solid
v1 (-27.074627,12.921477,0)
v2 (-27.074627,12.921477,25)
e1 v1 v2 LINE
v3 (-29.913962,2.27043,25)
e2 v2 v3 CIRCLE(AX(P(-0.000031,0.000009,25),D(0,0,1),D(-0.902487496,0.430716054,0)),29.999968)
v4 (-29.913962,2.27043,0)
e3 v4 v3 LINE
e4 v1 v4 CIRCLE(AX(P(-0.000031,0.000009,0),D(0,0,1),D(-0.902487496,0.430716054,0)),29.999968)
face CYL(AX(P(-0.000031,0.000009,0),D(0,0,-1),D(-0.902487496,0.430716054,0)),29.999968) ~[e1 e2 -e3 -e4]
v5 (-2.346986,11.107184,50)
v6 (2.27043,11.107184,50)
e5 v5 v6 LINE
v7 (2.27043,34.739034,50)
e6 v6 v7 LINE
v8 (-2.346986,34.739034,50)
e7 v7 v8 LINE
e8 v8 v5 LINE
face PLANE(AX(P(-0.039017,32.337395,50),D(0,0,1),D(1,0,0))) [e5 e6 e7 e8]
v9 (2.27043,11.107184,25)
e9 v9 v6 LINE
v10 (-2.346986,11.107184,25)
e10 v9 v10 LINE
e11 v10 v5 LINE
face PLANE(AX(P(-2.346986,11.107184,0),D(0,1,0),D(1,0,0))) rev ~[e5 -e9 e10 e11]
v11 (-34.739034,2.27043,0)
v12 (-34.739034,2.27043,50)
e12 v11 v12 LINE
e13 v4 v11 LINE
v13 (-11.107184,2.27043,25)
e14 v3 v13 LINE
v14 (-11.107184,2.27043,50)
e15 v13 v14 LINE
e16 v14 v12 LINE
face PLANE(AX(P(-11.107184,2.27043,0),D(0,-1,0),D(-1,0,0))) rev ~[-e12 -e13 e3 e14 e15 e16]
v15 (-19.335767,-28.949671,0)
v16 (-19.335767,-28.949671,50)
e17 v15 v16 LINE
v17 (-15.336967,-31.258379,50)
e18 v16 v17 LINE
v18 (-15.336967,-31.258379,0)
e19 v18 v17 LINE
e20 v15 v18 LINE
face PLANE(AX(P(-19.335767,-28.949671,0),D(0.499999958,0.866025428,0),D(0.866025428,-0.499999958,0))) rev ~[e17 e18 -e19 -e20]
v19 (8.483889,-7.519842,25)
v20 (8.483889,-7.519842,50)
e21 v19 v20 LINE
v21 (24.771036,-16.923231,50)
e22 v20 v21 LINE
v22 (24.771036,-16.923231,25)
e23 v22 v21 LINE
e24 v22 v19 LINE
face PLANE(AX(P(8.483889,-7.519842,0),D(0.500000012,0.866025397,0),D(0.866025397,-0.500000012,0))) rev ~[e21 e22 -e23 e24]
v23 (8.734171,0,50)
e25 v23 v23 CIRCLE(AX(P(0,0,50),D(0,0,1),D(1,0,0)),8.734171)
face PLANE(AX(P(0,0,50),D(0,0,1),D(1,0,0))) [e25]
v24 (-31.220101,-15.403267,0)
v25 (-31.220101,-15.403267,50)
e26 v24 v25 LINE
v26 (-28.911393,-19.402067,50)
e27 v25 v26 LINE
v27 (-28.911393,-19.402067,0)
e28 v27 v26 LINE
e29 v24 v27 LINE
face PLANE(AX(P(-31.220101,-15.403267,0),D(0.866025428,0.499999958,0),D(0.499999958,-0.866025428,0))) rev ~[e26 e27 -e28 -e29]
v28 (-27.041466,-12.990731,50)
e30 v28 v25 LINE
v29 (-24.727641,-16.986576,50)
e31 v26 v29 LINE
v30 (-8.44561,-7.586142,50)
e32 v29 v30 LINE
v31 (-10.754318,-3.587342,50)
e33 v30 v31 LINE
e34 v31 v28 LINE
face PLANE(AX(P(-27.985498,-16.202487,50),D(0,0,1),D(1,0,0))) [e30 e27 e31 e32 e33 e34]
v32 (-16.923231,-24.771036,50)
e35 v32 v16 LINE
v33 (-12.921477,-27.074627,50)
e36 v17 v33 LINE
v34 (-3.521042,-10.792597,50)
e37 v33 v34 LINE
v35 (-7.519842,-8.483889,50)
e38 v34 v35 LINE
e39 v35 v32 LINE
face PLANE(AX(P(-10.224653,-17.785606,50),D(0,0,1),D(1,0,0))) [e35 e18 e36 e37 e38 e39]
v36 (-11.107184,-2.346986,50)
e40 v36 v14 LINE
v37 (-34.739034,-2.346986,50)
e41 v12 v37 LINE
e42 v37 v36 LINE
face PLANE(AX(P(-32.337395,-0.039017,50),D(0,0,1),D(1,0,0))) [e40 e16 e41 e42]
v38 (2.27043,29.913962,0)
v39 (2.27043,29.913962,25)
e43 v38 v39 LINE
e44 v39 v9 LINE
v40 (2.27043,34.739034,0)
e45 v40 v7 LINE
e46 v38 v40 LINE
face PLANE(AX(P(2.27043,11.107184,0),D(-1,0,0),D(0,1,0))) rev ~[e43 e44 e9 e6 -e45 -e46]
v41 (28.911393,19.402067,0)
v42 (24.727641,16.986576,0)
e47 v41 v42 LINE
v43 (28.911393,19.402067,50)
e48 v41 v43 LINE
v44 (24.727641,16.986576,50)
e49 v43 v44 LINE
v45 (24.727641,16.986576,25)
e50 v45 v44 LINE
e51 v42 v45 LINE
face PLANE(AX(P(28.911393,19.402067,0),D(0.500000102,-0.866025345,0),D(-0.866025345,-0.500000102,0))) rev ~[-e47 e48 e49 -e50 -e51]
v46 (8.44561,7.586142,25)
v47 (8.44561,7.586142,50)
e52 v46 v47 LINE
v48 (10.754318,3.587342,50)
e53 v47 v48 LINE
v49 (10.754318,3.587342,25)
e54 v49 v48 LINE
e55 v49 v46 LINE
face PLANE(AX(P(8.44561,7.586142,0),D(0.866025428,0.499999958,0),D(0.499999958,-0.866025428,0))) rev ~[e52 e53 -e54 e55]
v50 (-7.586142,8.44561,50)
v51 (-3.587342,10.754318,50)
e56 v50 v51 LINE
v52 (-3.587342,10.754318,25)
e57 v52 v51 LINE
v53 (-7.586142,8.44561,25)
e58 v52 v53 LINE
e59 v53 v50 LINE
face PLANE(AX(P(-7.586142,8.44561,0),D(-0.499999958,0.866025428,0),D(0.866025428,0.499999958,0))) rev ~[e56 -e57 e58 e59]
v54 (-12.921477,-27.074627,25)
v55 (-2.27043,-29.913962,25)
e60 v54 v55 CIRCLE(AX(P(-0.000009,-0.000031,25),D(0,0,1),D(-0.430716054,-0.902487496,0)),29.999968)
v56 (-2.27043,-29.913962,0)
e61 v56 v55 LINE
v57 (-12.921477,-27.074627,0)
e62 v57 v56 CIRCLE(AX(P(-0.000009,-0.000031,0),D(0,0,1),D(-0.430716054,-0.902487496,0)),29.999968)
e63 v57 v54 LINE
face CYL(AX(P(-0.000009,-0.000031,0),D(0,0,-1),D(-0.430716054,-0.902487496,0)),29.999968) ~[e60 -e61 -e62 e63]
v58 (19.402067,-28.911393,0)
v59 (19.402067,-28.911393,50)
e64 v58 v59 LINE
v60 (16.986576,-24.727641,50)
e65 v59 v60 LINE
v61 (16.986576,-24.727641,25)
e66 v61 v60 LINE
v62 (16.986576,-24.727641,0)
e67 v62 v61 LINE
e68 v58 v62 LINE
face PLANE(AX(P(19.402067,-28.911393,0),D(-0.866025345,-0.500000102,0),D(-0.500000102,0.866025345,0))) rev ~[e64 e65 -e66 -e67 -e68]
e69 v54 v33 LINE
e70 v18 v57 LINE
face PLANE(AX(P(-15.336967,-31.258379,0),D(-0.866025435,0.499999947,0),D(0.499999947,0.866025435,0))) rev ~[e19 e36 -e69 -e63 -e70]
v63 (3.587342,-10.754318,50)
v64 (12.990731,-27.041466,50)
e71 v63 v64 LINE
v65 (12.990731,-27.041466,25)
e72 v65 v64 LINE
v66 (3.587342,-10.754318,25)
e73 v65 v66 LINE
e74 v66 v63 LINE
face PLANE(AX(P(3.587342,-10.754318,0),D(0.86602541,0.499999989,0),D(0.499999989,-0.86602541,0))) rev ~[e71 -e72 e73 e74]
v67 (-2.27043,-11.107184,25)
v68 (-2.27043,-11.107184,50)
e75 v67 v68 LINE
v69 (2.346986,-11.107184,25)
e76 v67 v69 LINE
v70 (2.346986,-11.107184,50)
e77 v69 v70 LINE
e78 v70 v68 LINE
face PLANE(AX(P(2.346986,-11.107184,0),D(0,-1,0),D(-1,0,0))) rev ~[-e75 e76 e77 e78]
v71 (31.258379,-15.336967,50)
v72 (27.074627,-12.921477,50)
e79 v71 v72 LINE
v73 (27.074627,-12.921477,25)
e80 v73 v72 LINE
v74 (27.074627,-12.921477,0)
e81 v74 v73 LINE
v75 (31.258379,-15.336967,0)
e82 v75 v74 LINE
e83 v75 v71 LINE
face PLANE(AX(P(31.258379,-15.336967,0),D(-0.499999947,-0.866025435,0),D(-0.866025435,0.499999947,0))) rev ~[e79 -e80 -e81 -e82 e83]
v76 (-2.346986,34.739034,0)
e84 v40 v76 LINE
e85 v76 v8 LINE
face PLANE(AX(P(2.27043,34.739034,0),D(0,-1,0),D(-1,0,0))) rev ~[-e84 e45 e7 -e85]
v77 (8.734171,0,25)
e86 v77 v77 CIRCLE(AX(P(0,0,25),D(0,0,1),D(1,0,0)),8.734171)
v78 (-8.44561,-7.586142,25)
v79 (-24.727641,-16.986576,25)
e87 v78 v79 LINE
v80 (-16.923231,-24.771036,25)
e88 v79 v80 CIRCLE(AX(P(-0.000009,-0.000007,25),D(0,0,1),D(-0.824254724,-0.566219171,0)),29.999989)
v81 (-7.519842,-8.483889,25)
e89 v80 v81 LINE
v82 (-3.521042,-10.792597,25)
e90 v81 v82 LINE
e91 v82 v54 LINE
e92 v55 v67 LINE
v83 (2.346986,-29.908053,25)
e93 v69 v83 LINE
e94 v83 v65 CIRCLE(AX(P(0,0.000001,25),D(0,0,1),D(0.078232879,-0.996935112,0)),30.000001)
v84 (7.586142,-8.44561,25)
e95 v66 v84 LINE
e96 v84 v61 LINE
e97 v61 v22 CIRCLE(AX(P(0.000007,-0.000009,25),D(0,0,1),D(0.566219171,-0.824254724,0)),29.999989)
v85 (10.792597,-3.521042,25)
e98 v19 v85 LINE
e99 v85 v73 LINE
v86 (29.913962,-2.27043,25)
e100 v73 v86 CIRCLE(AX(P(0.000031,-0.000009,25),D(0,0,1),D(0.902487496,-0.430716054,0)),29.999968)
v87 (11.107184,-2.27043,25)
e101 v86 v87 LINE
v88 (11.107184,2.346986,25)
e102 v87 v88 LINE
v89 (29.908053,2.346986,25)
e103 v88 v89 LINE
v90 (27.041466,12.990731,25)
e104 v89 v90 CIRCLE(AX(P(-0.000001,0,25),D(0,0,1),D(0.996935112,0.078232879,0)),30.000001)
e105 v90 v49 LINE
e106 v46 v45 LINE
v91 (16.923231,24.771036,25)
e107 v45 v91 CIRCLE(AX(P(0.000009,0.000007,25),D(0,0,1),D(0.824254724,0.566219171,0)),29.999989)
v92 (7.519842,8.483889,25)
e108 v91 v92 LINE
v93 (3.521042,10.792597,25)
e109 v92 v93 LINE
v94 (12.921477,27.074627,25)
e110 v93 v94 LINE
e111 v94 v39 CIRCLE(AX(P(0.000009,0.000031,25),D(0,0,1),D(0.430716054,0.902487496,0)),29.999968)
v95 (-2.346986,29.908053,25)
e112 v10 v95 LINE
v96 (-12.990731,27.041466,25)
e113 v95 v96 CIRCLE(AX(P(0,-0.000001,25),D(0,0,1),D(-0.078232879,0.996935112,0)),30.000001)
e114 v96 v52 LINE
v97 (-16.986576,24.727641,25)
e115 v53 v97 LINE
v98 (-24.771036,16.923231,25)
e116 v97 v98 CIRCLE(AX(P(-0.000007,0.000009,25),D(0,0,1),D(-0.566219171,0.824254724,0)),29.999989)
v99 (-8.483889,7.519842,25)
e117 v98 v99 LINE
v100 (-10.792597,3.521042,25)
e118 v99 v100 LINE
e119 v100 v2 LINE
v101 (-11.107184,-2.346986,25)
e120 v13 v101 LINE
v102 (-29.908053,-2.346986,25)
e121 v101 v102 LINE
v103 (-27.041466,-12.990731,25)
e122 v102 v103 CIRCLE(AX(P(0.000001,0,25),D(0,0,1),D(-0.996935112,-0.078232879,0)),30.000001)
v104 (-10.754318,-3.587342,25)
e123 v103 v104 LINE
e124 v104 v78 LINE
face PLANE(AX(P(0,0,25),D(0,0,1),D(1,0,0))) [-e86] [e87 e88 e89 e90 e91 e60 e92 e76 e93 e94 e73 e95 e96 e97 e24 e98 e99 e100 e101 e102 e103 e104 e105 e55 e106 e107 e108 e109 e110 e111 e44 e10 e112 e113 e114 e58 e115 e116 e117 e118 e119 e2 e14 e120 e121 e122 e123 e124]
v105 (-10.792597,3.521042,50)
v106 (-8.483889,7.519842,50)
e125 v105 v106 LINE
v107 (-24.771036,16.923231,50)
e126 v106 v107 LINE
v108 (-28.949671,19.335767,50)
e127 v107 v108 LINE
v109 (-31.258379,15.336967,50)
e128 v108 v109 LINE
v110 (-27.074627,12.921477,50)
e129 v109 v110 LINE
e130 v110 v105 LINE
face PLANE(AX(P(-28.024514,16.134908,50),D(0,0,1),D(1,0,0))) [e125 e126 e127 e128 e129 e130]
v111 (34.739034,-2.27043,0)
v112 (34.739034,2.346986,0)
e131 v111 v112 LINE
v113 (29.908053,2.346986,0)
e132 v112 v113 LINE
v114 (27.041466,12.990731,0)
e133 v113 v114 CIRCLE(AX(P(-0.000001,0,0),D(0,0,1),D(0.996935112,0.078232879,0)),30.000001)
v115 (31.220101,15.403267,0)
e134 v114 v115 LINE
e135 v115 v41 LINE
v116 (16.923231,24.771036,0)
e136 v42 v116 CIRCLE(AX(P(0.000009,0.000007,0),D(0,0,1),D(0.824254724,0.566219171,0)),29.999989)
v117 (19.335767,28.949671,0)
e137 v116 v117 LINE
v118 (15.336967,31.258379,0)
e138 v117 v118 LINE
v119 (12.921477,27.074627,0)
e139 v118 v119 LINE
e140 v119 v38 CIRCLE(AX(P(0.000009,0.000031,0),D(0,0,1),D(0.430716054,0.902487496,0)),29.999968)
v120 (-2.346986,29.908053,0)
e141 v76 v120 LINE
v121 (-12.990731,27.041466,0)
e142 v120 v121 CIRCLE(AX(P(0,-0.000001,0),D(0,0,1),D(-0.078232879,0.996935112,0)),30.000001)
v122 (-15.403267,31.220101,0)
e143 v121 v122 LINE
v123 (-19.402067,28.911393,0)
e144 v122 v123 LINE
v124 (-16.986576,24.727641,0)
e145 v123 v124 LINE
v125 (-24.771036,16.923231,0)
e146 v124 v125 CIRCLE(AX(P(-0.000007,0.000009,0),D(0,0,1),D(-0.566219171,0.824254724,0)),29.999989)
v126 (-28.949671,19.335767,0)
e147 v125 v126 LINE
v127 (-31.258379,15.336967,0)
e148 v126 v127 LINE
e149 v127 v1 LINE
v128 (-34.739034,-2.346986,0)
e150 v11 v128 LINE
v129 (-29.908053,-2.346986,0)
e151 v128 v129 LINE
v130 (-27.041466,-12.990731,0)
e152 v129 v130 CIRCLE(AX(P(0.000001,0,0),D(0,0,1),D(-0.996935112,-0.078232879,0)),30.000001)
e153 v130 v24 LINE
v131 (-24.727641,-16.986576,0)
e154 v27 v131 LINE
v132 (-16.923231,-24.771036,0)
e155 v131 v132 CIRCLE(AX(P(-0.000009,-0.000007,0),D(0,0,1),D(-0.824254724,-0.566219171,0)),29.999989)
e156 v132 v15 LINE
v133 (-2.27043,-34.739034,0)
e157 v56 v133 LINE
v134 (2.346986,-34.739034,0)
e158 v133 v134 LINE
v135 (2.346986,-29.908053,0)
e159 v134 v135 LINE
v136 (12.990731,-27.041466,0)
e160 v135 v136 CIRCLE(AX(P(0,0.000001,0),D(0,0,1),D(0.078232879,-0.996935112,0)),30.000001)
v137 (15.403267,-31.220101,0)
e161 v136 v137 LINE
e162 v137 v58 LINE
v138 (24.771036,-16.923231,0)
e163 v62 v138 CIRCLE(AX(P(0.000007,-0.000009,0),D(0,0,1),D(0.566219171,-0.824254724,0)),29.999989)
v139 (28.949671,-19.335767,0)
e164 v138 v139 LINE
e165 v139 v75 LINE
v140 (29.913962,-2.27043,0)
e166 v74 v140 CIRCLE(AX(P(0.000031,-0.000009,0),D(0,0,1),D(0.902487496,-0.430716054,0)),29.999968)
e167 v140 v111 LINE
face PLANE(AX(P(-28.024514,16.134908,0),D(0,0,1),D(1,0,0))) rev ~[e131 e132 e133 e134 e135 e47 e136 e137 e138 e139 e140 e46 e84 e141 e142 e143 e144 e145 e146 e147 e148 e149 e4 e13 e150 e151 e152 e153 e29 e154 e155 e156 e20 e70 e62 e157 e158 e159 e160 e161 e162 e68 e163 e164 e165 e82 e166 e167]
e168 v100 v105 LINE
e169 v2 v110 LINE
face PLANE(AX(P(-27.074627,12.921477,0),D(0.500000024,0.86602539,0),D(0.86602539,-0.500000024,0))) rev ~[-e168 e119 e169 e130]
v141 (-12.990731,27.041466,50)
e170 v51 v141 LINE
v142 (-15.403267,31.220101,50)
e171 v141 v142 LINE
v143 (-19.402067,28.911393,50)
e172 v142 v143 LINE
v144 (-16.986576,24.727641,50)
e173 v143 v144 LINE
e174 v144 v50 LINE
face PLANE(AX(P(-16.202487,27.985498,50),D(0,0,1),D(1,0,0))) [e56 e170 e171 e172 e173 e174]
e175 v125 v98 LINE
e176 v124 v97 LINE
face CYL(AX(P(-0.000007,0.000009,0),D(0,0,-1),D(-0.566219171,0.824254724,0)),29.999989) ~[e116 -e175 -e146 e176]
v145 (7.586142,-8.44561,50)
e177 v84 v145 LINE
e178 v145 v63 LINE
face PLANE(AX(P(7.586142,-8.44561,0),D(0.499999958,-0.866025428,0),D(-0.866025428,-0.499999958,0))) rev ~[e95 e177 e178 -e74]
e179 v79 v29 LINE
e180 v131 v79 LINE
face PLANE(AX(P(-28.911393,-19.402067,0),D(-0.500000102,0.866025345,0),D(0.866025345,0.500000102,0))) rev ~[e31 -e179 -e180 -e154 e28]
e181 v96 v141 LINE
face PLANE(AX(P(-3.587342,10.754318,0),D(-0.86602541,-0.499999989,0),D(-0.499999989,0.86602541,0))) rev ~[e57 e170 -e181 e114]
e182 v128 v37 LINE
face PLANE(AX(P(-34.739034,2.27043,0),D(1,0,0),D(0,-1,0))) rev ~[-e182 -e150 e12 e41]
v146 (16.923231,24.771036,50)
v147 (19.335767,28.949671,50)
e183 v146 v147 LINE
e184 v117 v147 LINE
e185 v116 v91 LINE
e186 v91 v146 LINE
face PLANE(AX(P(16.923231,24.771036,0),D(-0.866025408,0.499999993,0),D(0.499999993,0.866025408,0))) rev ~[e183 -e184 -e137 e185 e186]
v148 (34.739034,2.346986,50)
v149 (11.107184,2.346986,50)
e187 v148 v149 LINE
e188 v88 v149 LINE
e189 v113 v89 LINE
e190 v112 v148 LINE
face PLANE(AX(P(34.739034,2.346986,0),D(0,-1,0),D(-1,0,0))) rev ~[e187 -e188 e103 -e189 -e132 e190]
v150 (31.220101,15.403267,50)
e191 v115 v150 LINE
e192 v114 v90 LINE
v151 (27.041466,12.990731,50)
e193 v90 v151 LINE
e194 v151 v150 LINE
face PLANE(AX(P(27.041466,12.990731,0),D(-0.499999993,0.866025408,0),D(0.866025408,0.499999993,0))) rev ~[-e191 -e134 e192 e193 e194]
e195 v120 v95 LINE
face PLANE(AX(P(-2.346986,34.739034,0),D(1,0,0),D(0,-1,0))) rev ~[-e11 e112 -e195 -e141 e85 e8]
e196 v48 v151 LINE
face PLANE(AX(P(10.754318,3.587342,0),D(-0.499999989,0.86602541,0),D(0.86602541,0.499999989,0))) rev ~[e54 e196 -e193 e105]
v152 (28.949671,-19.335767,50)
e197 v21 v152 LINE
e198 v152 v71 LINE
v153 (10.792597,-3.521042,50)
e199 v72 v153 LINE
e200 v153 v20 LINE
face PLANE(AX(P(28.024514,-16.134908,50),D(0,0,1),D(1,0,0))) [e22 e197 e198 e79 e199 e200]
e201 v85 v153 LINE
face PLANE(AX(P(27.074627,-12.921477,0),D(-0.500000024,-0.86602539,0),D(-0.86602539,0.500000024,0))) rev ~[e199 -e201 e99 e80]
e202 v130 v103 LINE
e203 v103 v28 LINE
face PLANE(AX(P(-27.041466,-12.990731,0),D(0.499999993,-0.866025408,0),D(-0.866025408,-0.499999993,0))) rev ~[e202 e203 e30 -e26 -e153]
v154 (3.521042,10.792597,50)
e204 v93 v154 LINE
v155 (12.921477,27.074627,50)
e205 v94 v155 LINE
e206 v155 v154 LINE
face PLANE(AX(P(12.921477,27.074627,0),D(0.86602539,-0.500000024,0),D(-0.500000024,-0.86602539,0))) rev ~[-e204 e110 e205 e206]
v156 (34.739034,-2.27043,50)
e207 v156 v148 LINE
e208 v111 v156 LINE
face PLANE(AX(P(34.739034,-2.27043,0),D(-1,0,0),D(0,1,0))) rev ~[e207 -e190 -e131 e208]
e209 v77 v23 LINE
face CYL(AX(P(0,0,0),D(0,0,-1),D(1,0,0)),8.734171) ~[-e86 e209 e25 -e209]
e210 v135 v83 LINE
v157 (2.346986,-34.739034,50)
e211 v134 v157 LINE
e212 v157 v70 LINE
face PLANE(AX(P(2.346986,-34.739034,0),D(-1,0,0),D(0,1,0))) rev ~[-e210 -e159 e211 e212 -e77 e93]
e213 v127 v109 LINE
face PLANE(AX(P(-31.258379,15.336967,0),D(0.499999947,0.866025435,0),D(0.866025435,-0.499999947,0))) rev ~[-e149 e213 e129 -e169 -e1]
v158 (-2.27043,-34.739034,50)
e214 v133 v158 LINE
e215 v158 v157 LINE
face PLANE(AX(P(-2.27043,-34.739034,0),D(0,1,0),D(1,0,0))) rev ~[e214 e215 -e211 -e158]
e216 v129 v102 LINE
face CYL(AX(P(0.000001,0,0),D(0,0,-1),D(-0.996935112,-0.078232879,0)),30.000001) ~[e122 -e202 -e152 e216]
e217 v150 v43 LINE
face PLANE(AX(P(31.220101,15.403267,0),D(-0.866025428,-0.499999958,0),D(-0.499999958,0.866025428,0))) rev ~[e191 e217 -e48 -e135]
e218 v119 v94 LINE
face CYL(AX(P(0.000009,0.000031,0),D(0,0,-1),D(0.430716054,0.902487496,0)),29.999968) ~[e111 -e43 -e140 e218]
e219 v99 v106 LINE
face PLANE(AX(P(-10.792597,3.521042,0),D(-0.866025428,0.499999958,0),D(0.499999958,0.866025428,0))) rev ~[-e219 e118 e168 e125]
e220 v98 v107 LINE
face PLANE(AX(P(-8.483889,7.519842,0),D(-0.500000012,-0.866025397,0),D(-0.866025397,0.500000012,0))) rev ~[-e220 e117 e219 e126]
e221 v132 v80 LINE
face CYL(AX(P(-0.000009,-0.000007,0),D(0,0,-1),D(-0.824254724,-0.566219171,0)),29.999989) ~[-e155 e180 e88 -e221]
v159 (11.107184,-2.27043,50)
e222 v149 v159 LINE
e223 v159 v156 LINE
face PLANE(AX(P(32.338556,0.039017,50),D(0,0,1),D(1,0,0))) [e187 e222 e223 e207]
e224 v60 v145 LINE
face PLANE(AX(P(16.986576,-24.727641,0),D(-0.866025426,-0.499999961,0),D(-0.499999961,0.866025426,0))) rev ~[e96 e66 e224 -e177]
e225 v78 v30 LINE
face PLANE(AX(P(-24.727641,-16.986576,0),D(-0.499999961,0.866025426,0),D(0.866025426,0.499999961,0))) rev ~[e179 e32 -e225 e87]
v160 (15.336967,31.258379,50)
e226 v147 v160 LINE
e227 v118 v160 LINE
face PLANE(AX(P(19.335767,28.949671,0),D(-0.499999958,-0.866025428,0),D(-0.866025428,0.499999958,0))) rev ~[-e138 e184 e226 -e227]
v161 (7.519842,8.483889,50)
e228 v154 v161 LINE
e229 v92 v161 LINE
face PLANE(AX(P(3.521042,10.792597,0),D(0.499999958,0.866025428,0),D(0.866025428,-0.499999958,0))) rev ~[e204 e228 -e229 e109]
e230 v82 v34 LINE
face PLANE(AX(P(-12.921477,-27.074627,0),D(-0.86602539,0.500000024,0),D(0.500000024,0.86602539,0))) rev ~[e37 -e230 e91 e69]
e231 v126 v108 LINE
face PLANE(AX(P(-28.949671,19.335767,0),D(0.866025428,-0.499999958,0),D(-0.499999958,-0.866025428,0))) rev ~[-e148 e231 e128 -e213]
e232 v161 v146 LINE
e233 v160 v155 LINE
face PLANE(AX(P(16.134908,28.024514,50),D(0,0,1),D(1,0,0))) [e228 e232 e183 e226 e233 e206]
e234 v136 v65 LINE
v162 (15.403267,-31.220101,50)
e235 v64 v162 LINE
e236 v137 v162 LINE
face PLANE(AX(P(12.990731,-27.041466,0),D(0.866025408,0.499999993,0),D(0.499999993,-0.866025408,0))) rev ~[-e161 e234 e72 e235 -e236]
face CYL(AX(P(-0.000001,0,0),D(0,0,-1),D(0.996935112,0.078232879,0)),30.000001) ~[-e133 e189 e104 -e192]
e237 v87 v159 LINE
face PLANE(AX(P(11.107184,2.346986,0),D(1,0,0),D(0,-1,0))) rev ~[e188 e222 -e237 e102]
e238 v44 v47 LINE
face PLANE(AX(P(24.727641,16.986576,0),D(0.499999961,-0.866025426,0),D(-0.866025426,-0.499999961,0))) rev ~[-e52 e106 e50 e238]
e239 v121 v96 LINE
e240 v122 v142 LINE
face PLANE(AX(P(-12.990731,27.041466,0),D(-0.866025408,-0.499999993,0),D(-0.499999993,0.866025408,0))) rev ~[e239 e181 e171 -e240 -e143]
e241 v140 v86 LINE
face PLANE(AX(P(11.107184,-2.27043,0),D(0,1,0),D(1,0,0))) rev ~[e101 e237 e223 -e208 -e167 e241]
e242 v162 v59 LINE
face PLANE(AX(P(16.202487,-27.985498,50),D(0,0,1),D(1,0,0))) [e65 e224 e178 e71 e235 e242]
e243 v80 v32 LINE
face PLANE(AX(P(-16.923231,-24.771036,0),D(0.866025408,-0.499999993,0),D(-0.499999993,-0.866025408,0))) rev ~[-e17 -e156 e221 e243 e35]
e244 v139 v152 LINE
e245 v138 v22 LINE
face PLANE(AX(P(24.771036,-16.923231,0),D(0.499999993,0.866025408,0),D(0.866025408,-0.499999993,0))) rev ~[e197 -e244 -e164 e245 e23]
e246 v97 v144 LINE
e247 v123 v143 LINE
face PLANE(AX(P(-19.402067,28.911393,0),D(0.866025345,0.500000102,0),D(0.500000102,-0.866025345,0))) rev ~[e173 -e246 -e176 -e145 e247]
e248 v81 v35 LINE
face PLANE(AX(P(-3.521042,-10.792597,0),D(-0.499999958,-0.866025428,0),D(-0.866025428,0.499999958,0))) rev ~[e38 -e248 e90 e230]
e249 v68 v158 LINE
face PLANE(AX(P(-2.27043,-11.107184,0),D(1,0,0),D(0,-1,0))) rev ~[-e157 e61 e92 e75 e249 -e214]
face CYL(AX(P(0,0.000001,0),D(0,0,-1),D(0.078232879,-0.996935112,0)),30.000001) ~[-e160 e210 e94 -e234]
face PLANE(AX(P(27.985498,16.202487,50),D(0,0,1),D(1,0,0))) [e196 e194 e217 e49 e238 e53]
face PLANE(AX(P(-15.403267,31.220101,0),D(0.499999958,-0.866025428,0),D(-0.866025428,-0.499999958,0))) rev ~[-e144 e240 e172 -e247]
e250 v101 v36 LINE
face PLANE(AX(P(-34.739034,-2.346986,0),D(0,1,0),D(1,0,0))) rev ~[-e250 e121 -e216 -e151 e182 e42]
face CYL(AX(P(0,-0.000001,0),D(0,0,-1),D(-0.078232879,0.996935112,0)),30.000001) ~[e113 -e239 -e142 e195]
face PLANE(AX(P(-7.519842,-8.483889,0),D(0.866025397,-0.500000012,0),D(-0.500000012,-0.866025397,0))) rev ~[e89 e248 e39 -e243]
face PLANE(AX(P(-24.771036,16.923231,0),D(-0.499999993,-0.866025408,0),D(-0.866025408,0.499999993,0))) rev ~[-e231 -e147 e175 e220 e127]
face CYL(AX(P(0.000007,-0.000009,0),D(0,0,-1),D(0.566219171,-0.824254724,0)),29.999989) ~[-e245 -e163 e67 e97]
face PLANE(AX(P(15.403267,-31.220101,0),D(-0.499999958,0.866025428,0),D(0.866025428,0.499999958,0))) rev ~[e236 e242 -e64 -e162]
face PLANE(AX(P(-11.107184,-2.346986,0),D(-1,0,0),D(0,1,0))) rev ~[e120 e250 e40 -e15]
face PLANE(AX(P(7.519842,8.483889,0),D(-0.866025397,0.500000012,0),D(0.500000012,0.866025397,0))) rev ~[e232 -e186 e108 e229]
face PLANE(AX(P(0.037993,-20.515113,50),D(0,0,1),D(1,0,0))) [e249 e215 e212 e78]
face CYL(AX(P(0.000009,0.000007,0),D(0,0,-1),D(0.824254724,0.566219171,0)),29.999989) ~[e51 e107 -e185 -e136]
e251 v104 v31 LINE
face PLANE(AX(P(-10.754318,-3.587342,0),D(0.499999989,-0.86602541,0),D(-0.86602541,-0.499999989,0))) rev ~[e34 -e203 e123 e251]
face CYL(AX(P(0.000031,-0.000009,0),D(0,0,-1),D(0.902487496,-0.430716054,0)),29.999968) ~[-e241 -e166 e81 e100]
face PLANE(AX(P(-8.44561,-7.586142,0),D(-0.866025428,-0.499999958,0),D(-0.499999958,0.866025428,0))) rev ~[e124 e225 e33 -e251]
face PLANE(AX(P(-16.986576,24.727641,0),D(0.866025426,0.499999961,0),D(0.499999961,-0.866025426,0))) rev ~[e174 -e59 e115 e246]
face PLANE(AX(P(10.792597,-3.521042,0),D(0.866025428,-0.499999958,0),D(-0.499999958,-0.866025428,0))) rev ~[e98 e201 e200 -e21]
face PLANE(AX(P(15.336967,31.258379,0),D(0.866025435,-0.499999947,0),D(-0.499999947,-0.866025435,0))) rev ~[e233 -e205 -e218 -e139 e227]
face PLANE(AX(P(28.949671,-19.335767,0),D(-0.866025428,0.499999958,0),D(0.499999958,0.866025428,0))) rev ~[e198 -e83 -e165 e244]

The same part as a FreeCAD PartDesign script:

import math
import FreeCAD as App
import Part
import Sketcher
Q = App.Units.Quantity


def add_polygon(sketch, points):
    """Adds a closed chain of lines whose ends are joined by coincident constraints."""
    first, n = sketch.GeometryCount, len(points)
    for a, b in zip(points, points[1:] + points[:1]):
        sketch.addGeometry(Part.LineSegment(App.Vector(*a, 0), App.Vector(*b, 0)), False)
    for i in range(n):
        sketch.addConstraint(Sketcher.Constraint("Coincident", first + i, 2, first + (i + 1) % n, 1))

doc = App.newDocument("Part")
body = doc.addObject("PartDesign::Body", "Body")

# Sketch on XY plane
sketch1 = doc.addObject("Sketcher::SketchObject", "Sketch")
body.addObject(sketch1)
sketch1.AttachmentSupport = (doc.XY_Plane, [""])
sketch1.MapMode = "FlatFace"
sketch1.addGeometry(Part.LineSegment(App.Vector(11.107184, 2.346986, 0), App.Vector(29.908053, 2.346986, 0)), False)
sketch1.addGeometry(Part.ArcOfCircle(Part.Circle(App.Vector(-0.000001, 0, 0), App.Vector(0, 0, 1), 30.000001), math.radians(4.486999), math.radians(25.659648)), False)
sketch1.addGeometry(Part.LineSegment(App.Vector(27.041466, 12.990731, 0), App.Vector(10.754318, 3.587342, 0)), False)
sketch1.addGeometry(Part.LineSegment(App.Vector(10.754318, 3.587342, 0), App.Vector(8.44561, 7.586142, 0)), False)
sketch1.addGeometry(Part.LineSegment(App.Vector(8.44561, 7.586142, 0), App.Vector(24.727641, 16.986576, 0)), False)
sketch1.addGeometry(Part.ArcOfCircle(Part.Circle(App.Vector(0.000009, 0.000007, 0), App.Vector(0, 0, 1), 29.999989), math.radians(34.486996), math.radians(55.659654)), False)
sketch1.addGeometry(Part.LineSegment(App.Vector(16.923231, 24.771036, 0), App.Vector(7.519842, 8.483889, 0)), False)
sketch1.addGeometry(Part.LineSegment(App.Vector(7.519842, 8.483889, 0), App.Vector(3.521042, 10.792597, 0)), False)
sketch1.addGeometry(Part.LineSegment(App.Vector(3.521042, 10.792597, 0), App.Vector(12.921477, 27.074627, 0)), False)
sketch1.addGeometry(Part.ArcOfCircle(Part.Circle(App.Vector(0.000009, 0.000031, 0), App.Vector(0, 0, 1), 29.999968), math.radians(64.486989), math.radians(85.659661)), False)
sketch1.addGeometry(Part.LineSegment(App.Vector(2.27043, 29.913962, 0), App.Vector(2.27043, 11.107184, 0)), False)
sketch1.addGeometry(Part.LineSegment(App.Vector(2.27043, 11.107184, 0), App.Vector(-2.346986, 11.107184, 0)), False)
sketch1.addGeometry(Part.LineSegment(App.Vector(-2.346986, 11.107184, 0), App.Vector(-2.346986, 29.908053, 0)), False)
sketch1.addGeometry(Part.ArcOfCircle(Part.Circle(App.Vector(0, -0.000001, 0), App.Vector(0, 0, 1), 30.000001), math.radians(94.486999), math.radians(115.659648)), False)
sketch1.addGeometry(Part.LineSegment(App.Vector(-12.990731, 27.041466, 0), App.Vector(-3.587342, 10.754318, 0)), False)
sketch1.addGeometry(Part.LineSegment(App.Vector(-3.587342, 10.754318, 0), App.Vector(-7.586142, 8.44561, 0)), False)
sketch1.addGeometry(Part.LineSegment(App.Vector(-7.586142, 8.44561, 0), App.Vector(-16.986576, 24.727641, 0)), False)
sketch1.addGeometry(Part.ArcOfCircle(Part.Circle(App.Vector(-0.000007, 0.000009, 0), App.Vector(0, 0, 1), 29.999989), math.radians(124.486996), math.radians(145.659654)), False)
sketch1.addGeometry(Part.LineSegment(App.Vector(-24.771036, 16.923231, 0), App.Vector(-8.483889, 7.519842, 0)), False)
sketch1.addGeometry(Part.LineSegment(App.Vector(-8.483889, 7.519842, 0), App.Vector(-10.792597, 3.521042, 0)), False)
sketch1.addGeometry(Part.LineSegment(App.Vector(-10.792597, 3.521042, 0), App.Vector(-27.074627, 12.921477, 0)), False)
sketch1.addGeometry(Part.ArcOfCircle(Part.Circle(App.Vector(-0.000031, 0.000009, 0), App.Vector(0, 0, 1), 29.999968), math.radians(154.486989), math.radians(175.659661)), False)
sketch1.addGeometry(Part.LineSegment(App.Vector(-29.913962, 2.27043, 0), App.Vector(-11.107184, 2.27043, 0)), False)
sketch1.addGeometry(Part.LineSegment(App.Vector(-11.107184, 2.27043, 0), App.Vector(-11.107184, -2.346986, 0)), False)
sketch1.addGeometry(Part.LineSegment(App.Vector(-11.107184, -2.346986, 0), App.Vector(-29.908053, -2.346986, 0)), False)
sketch1.addGeometry(Part.ArcOfCircle(Part.Circle(App.Vector(0.000001, 0, 0), App.Vector(0, 0, 1), 30.000001), math.radians(-175.513001), math.radians(-154.340352)), False)
sketch1.addGeometry(Part.LineSegment(App.Vector(-27.041466, -12.990731, 0), App.Vector(-10.754318, -3.587342, 0)), False)
sketch1.addGeometry(Part.LineSegment(App.Vector(-10.754318, -3.587342, 0), App.Vector(-8.44561, -7.586142, 0)), False)
sketch1.addGeometry(Part.LineSegment(App.Vector(-8.44561, -7.586142, 0), App.Vector(-24.727641, -16.986576, 0)), False)
sketch1.addGeometry(Part.ArcOfCircle(Part.Circle(App.Vector(-0.000009, -0.000007, 0), App.Vector(0, 0, 1), 29.999989), math.radians(-145.513004), math.radians(-124.340346)), False)
sketch1.addGeometry(Part.LineSegment(App.Vector(-16.923231, -24.771036, 0), App.Vector(-7.519842, -8.483889, 0)), False)
sketch1.addGeometry(Part.LineSegment(App.Vector(-7.519842, -8.483889, 0), App.Vector(-3.521042, -10.792597, 0)), False)
sketch1.addGeometry(Part.LineSegment(App.Vector(-3.521042, -10.792597, 0), App.Vector(-12.921477, -27.074627, 0)), False)
sketch1.addGeometry(Part.ArcOfCircle(Part.Circle(App.Vector(-0.000009, -0.000031, 0), App.Vector(0, 0, 1), 29.999968), math.radians(-115.513011), math.radians(-94.340339)), False)
sketch1.addGeometry(Part.LineSegment(App.Vector(-2.27043, -29.913962, 0), App.Vector(-2.27043, -11.107184, 0)), False)
sketch1.addGeometry(Part.LineSegment(App.Vector(-2.27043, -11.107184, 0), App.Vector(2.346986, -11.107184, 0)), False)
sketch1.addGeometry(Part.LineSegment(App.Vector(2.346986, -11.107184, 0), App.Vector(2.346986, -29.908053, 0)), False)
sketch1.addGeometry(Part.ArcOfCircle(Part.Circle(App.Vector(0, 0.000001, 0), App.Vector(0, 0, 1), 30.000001), math.radians(-85.513001), math.radians(-64.340352)), False)
sketch1.addGeometry(Part.LineSegment(App.Vector(12.990731, -27.041466, 0), App.Vector(3.587342, -10.754318, 0)), False)
sketch1.addGeometry(Part.LineSegment(App.Vector(3.587342, -10.754318, 0), App.Vector(7.586142, -8.44561, 0)), False)
sketch1.addGeometry(Part.LineSegment(App.Vector(7.586142, -8.44561, 0), App.Vector(16.986576, -24.727641, 0)), False)
sketch1.addGeometry(Part.ArcOfCircle(Part.Circle(App.Vector(0.000007, -0.000009, 0), App.Vector(0, 0, 1), 29.999989), math.radians(-55.513004), math.radians(-34.340346)), False)
sketch1.addGeometry(Part.LineSegment(App.Vector(24.771036, -16.923231, 0), App.Vector(8.483889, -7.519842, 0)), False)
sketch1.addGeometry(Part.LineSegment(App.Vector(8.483889, -7.519842, 0), App.Vector(10.792597, -3.521042, 0)), False)
sketch1.addGeometry(Part.LineSegment(App.Vector(10.792597, -3.521042, 0), App.Vector(27.074627, -12.921477, 0)), False)
sketch1.addGeometry(Part.ArcOfCircle(Part.Circle(App.Vector(0.000031, -0.000009, 0), App.Vector(0, 0, 1), 29.999968), math.radians(-25.513011), math.radians(-4.340339)), False)
sketch1.addGeometry(Part.LineSegment(App.Vector(29.913962, -2.27043, 0), App.Vector(11.107184, -2.27043, 0)), False)
sketch1.addGeometry(Part.LineSegment(App.Vector(11.107184, -2.27043, 0), App.Vector(11.107184, 2.346986, 0)), False)
sketch1.addGeometry(Part.Circle(App.Vector(0, 0, 0), App.Vector(0, 0, 1), 8.734171), False)
sketch1.addConstraint(Sketcher.Constraint("Coincident", 0, 2, 1, 1))
sketch1.addConstraint(Sketcher.Constraint("Coincident", 1, 2, 2, 1))
sketch1.addConstraint(Sketcher.Constraint("Coincident", 2, 2, 3, 1))
sketch1.addConstraint(Sketcher.Constraint("Coincident", 3, 2, 4, 1))
sketch1.addConstraint(Sketcher.Constraint("Coincident", 4, 2, 5, 1))
sketch1.addConstraint(Sketcher.Constraint("Coincident", 5, 2, 6, 1))
sketch1.addConstraint(Sketcher.Constraint("Coincident", 6, 2, 7, 1))
sketch1.addConstraint(Sketcher.Constraint("Coincident", 7, 2, 8, 1))
sketch1.addConstraint(Sketcher.Constraint("Coincident", 8, 2, 9, 1))
sketch1.addConstraint(Sketcher.Constraint("Coincident", 9, 2, 10, 1))
sketch1.addConstraint(Sketcher.Constraint("Coincident", 10, 2, 11, 1))
sketch1.addConstraint(Sketcher.Constraint("Coincident", 11, 2, 12, 1))
sketch1.addConstraint(Sketcher.Constraint("Coincident", 12, 2, 13, 1))
sketch1.addConstraint(Sketcher.Constraint("Coincident", 13, 2, 14, 1))
sketch1.addConstraint(Sketcher.Constraint("Coincident", 14, 2, 15, 1))
sketch1.addConstraint(Sketcher.Constraint("Coincident", 15, 2, 16, 1))
sketch1.addConstraint(Sketcher.Constraint("Coincident", 16, 2, 17, 1))
sketch1.addConstraint(Sketcher.Constraint("Coincident", 17, 2, 18, 1))
sketch1.addConstraint(Sketcher.Constraint("Coincident", 18, 2, 19, 1))
sketch1.addConstraint(Sketcher.Constraint("Coincident", 19, 2, 20, 1))
sketch1.addConstraint(Sketcher.Constraint("Coincident", 20, 2, 21, 1))
sketch1.addConstraint(Sketcher.Constraint("Coincident", 21, 2, 22, 1))
sketch1.addConstraint(Sketcher.Constraint("Coincident", 22, 2, 23, 1))
sketch1.addConstraint(Sketcher.Constraint("Coincident", 23, 2, 24, 1))
sketch1.addConstraint(Sketcher.Constraint("Coincident", 24, 2, 25, 1))
sketch1.addConstraint(Sketcher.Constraint("Coincident", 25, 2, 26, 1))
sketch1.addConstraint(Sketcher.Constraint("Coincident", 26, 2, 27, 1))
sketch1.addConstraint(Sketcher.Constraint("Coincident", 27, 2, 28, 1))
sketch1.addConstraint(Sketcher.Constraint("Coincident", 28, 2, 29, 1))
sketch1.addConstraint(Sketcher.Constraint("Coincident", 29, 2, 30, 1))
sketch1.addConstraint(Sketcher.Constraint("Coincident", 30, 2, 31, 1))
sketch1.addConstraint(Sketcher.Constraint("Coincident", 31, 2, 32, 1))
sketch1.addConstraint(Sketcher.Constraint("Coincident", 32, 2, 33, 1))
sketch1.addConstraint(Sketcher.Constraint("Coincident", 33, 2, 34, 1))
sketch1.addConstraint(Sketcher.Constraint("Coincident", 34, 2, 35, 1))
sketch1.addConstraint(Sketcher.Constraint("Coincident", 35, 2, 36, 1))
sketch1.addConstraint(Sketcher.Constraint("Coincident", 36, 2, 37, 1))
sketch1.addConstraint(Sketcher.Constraint("Coincident", 37, 2, 38, 1))
sketch1.addConstraint(Sketcher.Constraint("Coincident", 38, 2, 39, 1))
sketch1.addConstraint(Sketcher.Constraint("Coincident", 39, 2, 40, 1))
sketch1.addConstraint(Sketcher.Constraint("Coincident", 40, 2, 41, 1))
sketch1.addConstraint(Sketcher.Constraint("Coincident", 41, 2, 42, 1))
sketch1.addConstraint(Sketcher.Constraint("Coincident", 42, 2, 43, 1))
sketch1.addConstraint(Sketcher.Constraint("Coincident", 43, 2, 44, 1))
sketch1.addConstraint(Sketcher.Constraint("Coincident", 44, 2, 45, 1))
sketch1.addConstraint(Sketcher.Constraint("Coincident", 45, 2, 46, 1))
sketch1.addConstraint(Sketcher.Constraint("Coincident", 46, 2, 47, 1))
sketch1.addConstraint(Sketcher.Constraint("Coincident", 47, 2, 0, 1))
sketch1.addConstraint(Sketcher.Constraint("Horizontal", 0))
sketch1.addConstraint(Sketcher.Constraint("Vertical", 10))
sketch1.addConstraint(Sketcher.Constraint("Horizontal", 11))
sketch1.addConstraint(Sketcher.Constraint("Vertical", 12))
sketch1.addConstraint(Sketcher.Constraint("Horizontal", 22))
sketch1.addConstraint(Sketcher.Constraint("Vertical", 23))
sketch1.addConstraint(Sketcher.Constraint("Horizontal", 24))
sketch1.addConstraint(Sketcher.Constraint("Vertical", 34))
sketch1.addConstraint(Sketcher.Constraint("Horizontal", 35))
sketch1.addConstraint(Sketcher.Constraint("Vertical", 36))
sketch1.addConstraint(Sketcher.Constraint("Horizontal", 46))
sketch1.addConstraint(Sketcher.Constraint("Vertical", 47))
sketch1.addConstraint(Sketcher.Constraint("Coincident", 1, 3, -1, 1))
sketch1.addConstraint(Sketcher.Constraint("Coincident", 13, 3, -1, 1))
sketch1.addConstraint(Sketcher.Constraint("Coincident", 25, 3, -1, 1))
sketch1.addConstraint(Sketcher.Constraint("Coincident", 37, 3, -1, 1))
sketch1.addConstraint(Sketcher.Constraint("Coincident", 48, 3, -1, 1))
sketch1.addConstraint(Sketcher.Constraint("Equal", 1, 13))
sketch1.addConstraint(Sketcher.Constraint("Equal", 5, 17))
sketch1.addConstraint(Sketcher.Constraint("Equal", 9, 21))
sketch1.addConstraint(Sketcher.Constraint("Equal", 13, 25))
sketch1.addConstraint(Sketcher.Constraint("Equal", 17, 29))
sketch1.addConstraint(Sketcher.Constraint("Equal", 21, 33))
sketch1.addConstraint(Sketcher.Constraint("Equal", 25, 37))
sketch1.addConstraint(Sketcher.Constraint("Equal", 29, 41))
sketch1.addConstraint(Sketcher.Constraint("Equal", 33, 45))
sketch1.addConstraint(Sketcher.Constraint("Symmetric", 5, 3, 29, 3, -1, 1))
sketch1.addConstraint(Sketcher.Constraint("Symmetric", 9, 3, 33, 3, -1, 1))
sketch1.addConstraint(Sketcher.Constraint("Symmetric", 17, 3, 41, 3, -1, 1))
sketch1.addConstraint(Sketcher.Constraint("Symmetric", 21, 3, 45, 3, -1, 1))
sketch1.addConstraint(Sketcher.Constraint("Symmetric", 2, 2, 26, 2, -1, 1))
sketch1.addConstraint(Sketcher.Constraint("Symmetric", 3, 2, 27, 2, -1, 1))
sketch1.addConstraint(Sketcher.Constraint("Symmetric", 6, 2, 30, 2, -1, 1))
sketch1.addConstraint(Sketcher.Constraint("Symmetric", 7, 2, 31, 2, -1, 1))
sketch1.addConstraint(Sketcher.Constraint("Symmetric", 10, 2, 34, 2, -1, 1))
sketch1.addConstraint(Sketcher.Constraint("Symmetric", 14, 2, 38, 2, -1, 1))
sketch1.addConstraint(Sketcher.Constraint("Symmetric", 15, 2, 39, 2, -1, 1))
sketch1.addConstraint(Sketcher.Constraint("Symmetric", 18, 2, 42, 2, -1, 1))
sketch1.addConstraint(Sketcher.Constraint("Symmetric", 19, 2, 43, 2, -1, 1))
sketch1.addConstraint(Sketcher.Constraint("Symmetric", 22, 2, 46, 2, -1, 1))
sketch1.addConstraint(Sketcher.Constraint("Symmetric", 5, 3, 17, 3, -2))
sketch1.addConstraint(Sketcher.Constraint("Perpendicular", 2, 3))
sketch1.addConstraint(Sketcher.Constraint("Perpendicular", 3, 4))
sketch1.addConstraint(Sketcher.Constraint("Perpendicular", 6, 7))
sketch1.addConstraint(Sketcher.Constraint("Perpendicular", 7, 8))
sketch1.addConstraint(Sketcher.Constraint("Perpendicular", 4, 14))
sketch1.addConstraint(Sketcher.Constraint("Perpendicular", 14, 15))
sketch1.addConstraint(Sketcher.Constraint("Perpendicular", 15, 16))
sketch1.addConstraint(Sketcher.Constraint("Perpendicular", 8, 18))
sketch1.addConstraint(Sketcher.Constraint("Perpendicular", 18, 19))
sketch1.addConstraint(Sketcher.Constraint("Perpendicular", 19, 20))
sketch1.addConstraint(Sketcher.Constraint("Perpendicular", 16, 26))
sketch1.addConstraint(Sketcher.Constraint("Perpendicular", 27, 28))
sketch1.addConstraint(Sketcher.Constraint("Perpendicular", 20, 30))
sketch1.addConstraint(Sketcher.Constraint("Perpendicular", 31, 32))
sketch1.addConstraint(Sketcher.Constraint("Perpendicular", 28, 38))
sketch1.addConstraint(Sketcher.Constraint("Perpendicular", 39, 40))
sketch1.addConstraint(Sketcher.Constraint("Perpendicular", 32, 42))
sketch1.addConstraint(Sketcher.Constraint("Perpendicular", 43, 44))
sketch1.addConstraint(Sketcher.Constraint("Horizontal", 17, 3, 21, 3))
sketch1.addConstraint(Sketcher.Constraint("Vertical", 5, 3, 9, 3))
sketch1.addConstraint(Sketcher.Constraint("Equal", 0, 24))
sketch1.addConstraint(Sketcher.Constraint("Equal", 11, 35))
sketch1.addConstraint(Sketcher.Constraint("Equal", 46, 10))
sketch1.addConstraint(Sketcher.Constraint("Equal", 24, 12))
sketch1.addConstraint(Sketcher.Constraint("Equal", 35, 23))
sketch1.addConstraint(Sketcher.Constraint("Equal", 2, 6))
sketch1.addConstraint(Sketcher.Constraint("Equal", 3, 7))
sketch1.addConstraint(Sketcher.Constraint("Equal", 4, 8))
sketch1.addConstraint(Sketcher.Constraint("Equal", 6, 14))
sketch1.addConstraint(Sketcher.Constraint("Equal", 7, 15))
sketch1.addConstraint(Sketcher.Constraint("Equal", 8, 16))
sketch1.addConstraint(Sketcher.Constraint("Equal", 14, 18))
sketch1.addConstraint(Sketcher.Constraint("Equal", 15, 19))
sketch1.addConstraint(Sketcher.Constraint("Equal", 16, 20))
sketch1.addConstraint(Sketcher.Constraint("Radius", 1, 30.000001))
sketch1.addConstraint(Sketcher.Constraint("Angle", 2, Q("-150.000001 deg")))
sketch1.addConstraint(Sketcher.Constraint("Angle", 6, Q("-120.000001 deg")))
sketch1.addConstraint(Sketcher.Constraint("Diameter", 48, 17.468342))
sketch1.addConstraint(Sketcher.Constraint("Radius", 5, 29.999989))
sketch1.addConstraint(Sketcher.Constraint("Radius", 9, 29.999968))
sketch1.addConstraint(Sketcher.Constraint("DistanceX", 0, 1, 0, 2, 18.800869))
sketch1.addConstraint(Sketcher.Constraint("DistanceX", 22, 1, 22, 2, 18.806778))
sketch1.addConstraint(Sketcher.Constraint("Distance", 2, 18.806778))
sketch1.addConstraint(Sketcher.Constraint("Distance", 4, 18.800869))
sketch1.addConstraint(Sketcher.Constraint("DistanceX", 11, 2, 11, 1, 4.617416))
sketch1.addConstraint(Sketcher.Constraint("DistanceY", -1, 1, 1, 2, 12.990731))
sketch1.addConstraint(Sketcher.Constraint("DistanceX", -1, 1, 3, 2, 8.44561))
sketch1.addConstraint(Sketcher.Constraint("DistanceX", -1, 1, 5, 2, 16.923231))
sketch1.addConstraint(Sketcher.Constraint("DistanceY", -1, 1, 6, 2, 8.483889))
sketch1.addConstraint(Sketcher.Constraint("DistanceY", -1, 1, 17, 2, 16.923231))
pad1 = doc.addObject("PartDesign::Pad", "Pad")
body.addObject(pad1)
pad1.Profile = sketch1
pad1.Length = 25

# Sketch on XY plane
sketch2 = doc.addObject("Sketcher::SketchObject", "Sketch001")
body.addObject(sketch2)
sketch2.AttachmentSupport = (doc.XY_Plane, [""])
sketch2.MapMode = "FlatFace"
add_polygon(sketch2, [(-24.771036, 16.923231), (-28.949671, 19.335767), (-31.258379, 15.336967), (-27.074627, 12.921477), (-10.792597, 3.521042), (-8.483889, 7.519842)])  # lines 0-5
add_polygon(sketch2, [(-12.990731, 27.041466), (-15.403267, 31.220101), (-19.402067, 28.911393), (-16.986576, 24.727641), (-7.586142, 8.44561), (-3.587342, 10.754318)])  # lines 6-11
add_polygon(sketch2, [(2.27043, 34.739034), (-2.346986, 34.739034), (-2.346986, 11.107184), (2.27043, 11.107184)])  # lines 12-15
add_polygon(sketch2, [(16.923231, 24.771036), (19.335767, 28.949671), (15.336967, 31.258379), (12.921477, 27.074627), (3.521042, 10.792597), (7.519842, 8.483889)])  # lines 16-21
add_polygon(sketch2, [(27.041466, 12.990731), (31.220101, 15.403267), (28.911393, 19.402067), (24.727641, 16.986576), (8.44561, 7.586142), (10.754318, 3.587342)])  # lines 22-27
add_polygon(sketch2, [(34.739034, -2.27043), (34.739034, 2.346986), (11.107184, 2.346986), (11.107184, -2.27043)])  # lines 28-31
add_polygon(sketch2, [(31.258379, -15.336967), (27.074627, -12.921477), (10.792597, -3.521042), (8.483889, -7.519842), (24.771036, -16.923231), (28.949671, -19.335767)])  # lines 32-37
add_polygon(sketch2, [(19.402067, -28.911393), (16.986576, -24.727641), (7.586142, -8.44561), (3.587342, -10.754318), (12.990731, -27.041466), (15.403267, -31.220101)])  # lines 38-43
add_polygon(sketch2, [(-34.739034, 2.27043), (-34.739034, -2.346986), (-11.107184, -2.346986), (-11.107184, 2.27043)])  # lines 44-47
add_polygon(sketch2, [(-28.911393, -19.402067), (-24.727641, -16.986576), (-8.44561, -7.586142), (-10.754318, -3.587342), (-27.041466, -12.990731), (-31.220101, -15.403267)])  # lines 48-53
add_polygon(sketch2, [(-12.921477, -27.074627), (-3.521042, -10.792597), (-7.519842, -8.483889), (-16.923231, -24.771036), (-19.335767, -28.949671), (-15.336967, -31.258379)])  # lines 54-59
add_polygon(sketch2, [(2.346986, -11.107184), (-2.27043, -11.107184), (-2.27043, -34.739034), (2.346986, -34.739034)])  # lines 60-63
sketch2.addGeometry(Part.Circle(App.Vector(0, 0, 0), App.Vector(0, 0, 1), 8.734171), False)  # 64
sketch2.addConstraint(Sketcher.Constraint("Horizontal", 12))
sketch2.addConstraint(Sketcher.Constraint("Vertical", 13))
sketch2.addConstraint(Sketcher.Constraint("Horizontal", 14))
sketch2.addConstraint(Sketcher.Constraint("Vertical", 15))
sketch2.addConstraint(Sketcher.Constraint("Vertical", 28))
sketch2.addConstraint(Sketcher.Constraint("Horizontal", 29))
sketch2.addConstraint(Sketcher.Constraint("Vertical", 30))
sketch2.addConstraint(Sketcher.Constraint("Horizontal", 31))
sketch2.addConstraint(Sketcher.Constraint("Vertical", 44))
sketch2.addConstraint(Sketcher.Constraint("Horizontal", 45))
sketch2.addConstraint(Sketcher.Constraint("Vertical", 46))
sketch2.addConstraint(Sketcher.Constraint("Horizontal", 47))
sketch2.addConstraint(Sketcher.Constraint("Horizontal", 60))
sketch2.addConstraint(Sketcher.Constraint("Vertical", 61))
sketch2.addConstraint(Sketcher.Constraint("Horizontal", 62))
sketch2.addConstraint(Sketcher.Constraint("Vertical", 63))
sketch2.addConstraint(Sketcher.Constraint("Coincident", 64, 3, -1, 1))
sketch2.addConstraint(Sketcher.Constraint("Symmetric", 2, 2, 32, 2, -1, 1))
sketch2.addConstraint(Sketcher.Constraint("Symmetric", 3, 2, 33, 2, -1, 1))
sketch2.addConstraint(Sketcher.Constraint("Symmetric", 4, 2, 34, 2, -1, 1))
sketch2.addConstraint(Sketcher.Constraint("Symmetric", 5, 2, 35, 2, -1, 1))
sketch2.addConstraint(Sketcher.Constraint("Symmetric", 0, 2, 36, 2, -1, 1))
sketch2.addConstraint(Sketcher.Constraint("Symmetric", 1, 2, 37, 2, -1, 1))
sketch2.addConstraint(Sketcher.Constraint("Symmetric", 8, 2, 38, 2, -1, 1))
sketch2.addConstraint(Sketcher.Constraint("Symmetric", 9, 2, 39, 2, -1, 1))
sketch2.addConstraint(Sketcher.Constraint("Symmetric", 10, 2, 40, 2, -1, 1))
sketch2.addConstraint(Sketcher.Constraint("Symmetric", 11, 2, 41, 2, -1, 1))
sketch2.addConstraint(Sketcher.Constraint("Symmetric", 6, 2, 42, 2, -1, 1))
sketch2.addConstraint(Sketcher.Constraint("Symmetric", 7, 2, 43, 2, -1, 1))
sketch2.addConstraint(Sketcher.Constraint("Symmetric", 28, 2, 44, 2, -1, 1))
sketch2.addConstraint(Sketcher.Constraint("Symmetric", 30, 2, 46, 2, -1, 1))
sketch2.addConstraint(Sketcher.Constraint("Symmetric", 24, 2, 48, 2, -1, 1))
sketch2.addConstraint(Sketcher.Constraint("Symmetric", 25, 2, 49, 2, -1, 1))
sketch2.addConstraint(Sketcher.Constraint("Symmetric", 26, 2, 50, 2, -1, 1))
sketch2.addConstraint(Sketcher.Constraint("Symmetric", 27, 2, 51, 2, -1, 1))
sketch2.addConstraint(Sketcher.Constraint("Symmetric", 22, 2, 52, 2, -1, 1))
sketch2.addConstraint(Sketcher.Constraint("Symmetric", 23, 2, 53, 2, -1, 1))
sketch2.addConstraint(Sketcher.Constraint("Symmetric", 19, 2, 54, 2, -1, 1))
sketch2.addConstraint(Sketcher.Constraint("Symmetric", 20, 2, 55, 2, -1, 1))
sketch2.addConstraint(Sketcher.Constraint("Symmetric", 21, 2, 56, 2, -1, 1))
sketch2.addConstraint(Sketcher.Constraint("Symmetric", 16, 2, 57, 2, -1, 1))
sketch2.addConstraint(Sketcher.Constraint("Symmetric", 17, 2, 58, 2, -1, 1))
sketch2.addConstraint(Sketcher.Constraint("Symmetric", 18, 2, 59, 2, -1, 1))
sketch2.addConstraint(Sketcher.Constraint("Symmetric", 14, 2, 60, 2, -1, 1))
sketch2.addConstraint(Sketcher.Constraint("Symmetric", 12, 2, 62, 2, -1, 1))
sketch2.addConstraint(Sketcher.Constraint("Perpendicular", 0, 1))
sketch2.addConstraint(Sketcher.Constraint("Perpendicular", 1, 2))
sketch2.addConstraint(Sketcher.Constraint("Parallel", 2, 3))
sketch2.addConstraint(Sketcher.Constraint("Perpendicular", 3, 4))
sketch2.addConstraint(Sketcher.Constraint("Perpendicular", 4, 5))
sketch2.addConstraint(Sketcher.Constraint("Perpendicular", 6, 7))
sketch2.addConstraint(Sketcher.Constraint("Perpendicular", 7, 8))
sketch2.addConstraint(Sketcher.Constraint("Parallel", 8, 9))
sketch2.addConstraint(Sketcher.Constraint("Perpendicular", 9, 10))
sketch2.addConstraint(Sketcher.Constraint("Perpendicular", 10, 11))
sketch2.addConstraint(Sketcher.Constraint("Perpendicular", 5, 16))
sketch2.addConstraint(Sketcher.Constraint("Perpendicular", 16, 17))
sketch2.addConstraint(Sketcher.Constraint("Perpendicular", 17, 18))
sketch2.addConstraint(Sketcher.Constraint("Parallel", 18, 19))
sketch2.addConstraint(Sketcher.Constraint("Perpendicular", 19, 20))
sketch2.addConstraint(Sketcher.Constraint("Perpendicular", 20, 21))
sketch2.addConstraint(Sketcher.Constraint("Perpendicular", 11, 22))
sketch2.addConstraint(Sketcher.Constraint("Perpendicular", 22, 23))
sketch2.addConstraint(Sketcher.Constraint("Perpendicular", 23, 24))
sketch2.addConstraint(Sketcher.Constraint("Parallel", 24, 25))
sketch2.addConstraint(Sketcher.Constraint("Perpendicular", 25, 26))
sketch2.addConstraint(Sketcher.Constraint("Perpendicular", 26, 27))
sketch2.addConstraint(Sketcher.Constraint("Equal", 47, 13))
sketch2.addConstraint(Sketcher.Constraint("Equal", 62, 28))
sketch2.addConstraint(Sketcher.Constraint("Equal", 0, 6))
sketch2.addConstraint(Sketcher.Constraint("Equal", 4, 7))
sketch2.addConstraint(Sketcher.Constraint("Equal", 2, 8))
sketch2.addConstraint(Sketcher.Constraint("Equal", 3, 9))
sketch2.addConstraint(Sketcher.Constraint("Equal", 6, 16))
sketch2.addConstraint(Sketcher.Constraint("Equal", 10, 17))
sketch2.addConstraint(Sketcher.Constraint("Equal", 8, 18))
sketch2.addConstraint(Sketcher.Constraint("Equal", 9, 19))
sketch2.addConstraint(Sketcher.Constraint("Equal", 16, 22))
sketch2.addConstraint(Sketcher.Constraint("Equal", 20, 23))
sketch2.addConstraint(Sketcher.Constraint("Equal", 18, 24))
sketch2.addConstraint(Sketcher.Constraint("Equal", 19, 25))
sketch2.addConstraint(Sketcher.Constraint("Angle", 0, Q("150 deg")))
sketch2.addConstraint(Sketcher.Constraint("Angle", 6, Q("120 deg")))
sketch2.addConstraint(Sketcher.Constraint("Diameter", 64, 17.468342))
sketch2.addConstraint(Sketcher.Constraint("DistanceX", 29, 2, 29, 1, 23.63185))
sketch2.addConstraint(Sketcher.Constraint("DistanceY", -1, 1, 6, 2, 31.220101))
sketch2.addConstraint(Sketcher.Constraint("DistanceX", -1, 1, 22, 2, 31.220101))
sketch2.addConstraint(Sketcher.Constraint("Distance", 2, 4.830981))
sketch2.addConstraint(Sketcher.Constraint("Distance", 3, 18.800869))
sketch2.addConstraint(Sketcher.Constraint("Distance", 11, 18.806778))
sketch2.addConstraint(Sketcher.Constraint("DistanceX", 12, 2, 12, 1, 4.617416))
sketch2.addConstraint(Sketcher.Constraint("DistanceX", 0, 2, -1, 1, 28.949671))
sketch2.addConstraint(Sketcher.Constraint("DistanceX", 1, 2, -1, 1, 31.258379))
sketch2.addConstraint(Sketcher.Constraint("DistanceY", -1, 1, 3, 2, 3.521042))
sketch2.addConstraint(Sketcher.Constraint("DistanceX", 9, 2, -1, 1, 7.586142))
sketch2.addConstraint(Sketcher.Constraint("DistanceX", -1, 1, 14, 2, 2.27043))
sketch2.addConstraint(Sketcher.Constraint("DistanceY", -1, 1, 16, 2, 28.949671))
sketch2.addConstraint(Sketcher.Constraint("DistanceX", -1, 1, 19, 2, 3.521042))
sketch2.addConstraint(Sketcher.Constraint("DistanceY", -1, 1, 25, 2, 7.586142))
sketch2.addConstraint(Sketcher.Constraint("DistanceY", 30, 2, -1, 1, 2.27043))
sketch2.addConstraint(Sketcher.Constraint("DistanceY", -1, 1, 12, 2, 34.739034))
sketch2.addConstraint(Sketcher.Constraint("DistanceX", -1, 1, 28, 2, 34.739034))
pad2 = doc.addObject("PartDesign::Pad", "Pad001")
body.addObject(pad2)
pad2.Profile = sketch2
pad2.Length = 50

doc.recompute()
